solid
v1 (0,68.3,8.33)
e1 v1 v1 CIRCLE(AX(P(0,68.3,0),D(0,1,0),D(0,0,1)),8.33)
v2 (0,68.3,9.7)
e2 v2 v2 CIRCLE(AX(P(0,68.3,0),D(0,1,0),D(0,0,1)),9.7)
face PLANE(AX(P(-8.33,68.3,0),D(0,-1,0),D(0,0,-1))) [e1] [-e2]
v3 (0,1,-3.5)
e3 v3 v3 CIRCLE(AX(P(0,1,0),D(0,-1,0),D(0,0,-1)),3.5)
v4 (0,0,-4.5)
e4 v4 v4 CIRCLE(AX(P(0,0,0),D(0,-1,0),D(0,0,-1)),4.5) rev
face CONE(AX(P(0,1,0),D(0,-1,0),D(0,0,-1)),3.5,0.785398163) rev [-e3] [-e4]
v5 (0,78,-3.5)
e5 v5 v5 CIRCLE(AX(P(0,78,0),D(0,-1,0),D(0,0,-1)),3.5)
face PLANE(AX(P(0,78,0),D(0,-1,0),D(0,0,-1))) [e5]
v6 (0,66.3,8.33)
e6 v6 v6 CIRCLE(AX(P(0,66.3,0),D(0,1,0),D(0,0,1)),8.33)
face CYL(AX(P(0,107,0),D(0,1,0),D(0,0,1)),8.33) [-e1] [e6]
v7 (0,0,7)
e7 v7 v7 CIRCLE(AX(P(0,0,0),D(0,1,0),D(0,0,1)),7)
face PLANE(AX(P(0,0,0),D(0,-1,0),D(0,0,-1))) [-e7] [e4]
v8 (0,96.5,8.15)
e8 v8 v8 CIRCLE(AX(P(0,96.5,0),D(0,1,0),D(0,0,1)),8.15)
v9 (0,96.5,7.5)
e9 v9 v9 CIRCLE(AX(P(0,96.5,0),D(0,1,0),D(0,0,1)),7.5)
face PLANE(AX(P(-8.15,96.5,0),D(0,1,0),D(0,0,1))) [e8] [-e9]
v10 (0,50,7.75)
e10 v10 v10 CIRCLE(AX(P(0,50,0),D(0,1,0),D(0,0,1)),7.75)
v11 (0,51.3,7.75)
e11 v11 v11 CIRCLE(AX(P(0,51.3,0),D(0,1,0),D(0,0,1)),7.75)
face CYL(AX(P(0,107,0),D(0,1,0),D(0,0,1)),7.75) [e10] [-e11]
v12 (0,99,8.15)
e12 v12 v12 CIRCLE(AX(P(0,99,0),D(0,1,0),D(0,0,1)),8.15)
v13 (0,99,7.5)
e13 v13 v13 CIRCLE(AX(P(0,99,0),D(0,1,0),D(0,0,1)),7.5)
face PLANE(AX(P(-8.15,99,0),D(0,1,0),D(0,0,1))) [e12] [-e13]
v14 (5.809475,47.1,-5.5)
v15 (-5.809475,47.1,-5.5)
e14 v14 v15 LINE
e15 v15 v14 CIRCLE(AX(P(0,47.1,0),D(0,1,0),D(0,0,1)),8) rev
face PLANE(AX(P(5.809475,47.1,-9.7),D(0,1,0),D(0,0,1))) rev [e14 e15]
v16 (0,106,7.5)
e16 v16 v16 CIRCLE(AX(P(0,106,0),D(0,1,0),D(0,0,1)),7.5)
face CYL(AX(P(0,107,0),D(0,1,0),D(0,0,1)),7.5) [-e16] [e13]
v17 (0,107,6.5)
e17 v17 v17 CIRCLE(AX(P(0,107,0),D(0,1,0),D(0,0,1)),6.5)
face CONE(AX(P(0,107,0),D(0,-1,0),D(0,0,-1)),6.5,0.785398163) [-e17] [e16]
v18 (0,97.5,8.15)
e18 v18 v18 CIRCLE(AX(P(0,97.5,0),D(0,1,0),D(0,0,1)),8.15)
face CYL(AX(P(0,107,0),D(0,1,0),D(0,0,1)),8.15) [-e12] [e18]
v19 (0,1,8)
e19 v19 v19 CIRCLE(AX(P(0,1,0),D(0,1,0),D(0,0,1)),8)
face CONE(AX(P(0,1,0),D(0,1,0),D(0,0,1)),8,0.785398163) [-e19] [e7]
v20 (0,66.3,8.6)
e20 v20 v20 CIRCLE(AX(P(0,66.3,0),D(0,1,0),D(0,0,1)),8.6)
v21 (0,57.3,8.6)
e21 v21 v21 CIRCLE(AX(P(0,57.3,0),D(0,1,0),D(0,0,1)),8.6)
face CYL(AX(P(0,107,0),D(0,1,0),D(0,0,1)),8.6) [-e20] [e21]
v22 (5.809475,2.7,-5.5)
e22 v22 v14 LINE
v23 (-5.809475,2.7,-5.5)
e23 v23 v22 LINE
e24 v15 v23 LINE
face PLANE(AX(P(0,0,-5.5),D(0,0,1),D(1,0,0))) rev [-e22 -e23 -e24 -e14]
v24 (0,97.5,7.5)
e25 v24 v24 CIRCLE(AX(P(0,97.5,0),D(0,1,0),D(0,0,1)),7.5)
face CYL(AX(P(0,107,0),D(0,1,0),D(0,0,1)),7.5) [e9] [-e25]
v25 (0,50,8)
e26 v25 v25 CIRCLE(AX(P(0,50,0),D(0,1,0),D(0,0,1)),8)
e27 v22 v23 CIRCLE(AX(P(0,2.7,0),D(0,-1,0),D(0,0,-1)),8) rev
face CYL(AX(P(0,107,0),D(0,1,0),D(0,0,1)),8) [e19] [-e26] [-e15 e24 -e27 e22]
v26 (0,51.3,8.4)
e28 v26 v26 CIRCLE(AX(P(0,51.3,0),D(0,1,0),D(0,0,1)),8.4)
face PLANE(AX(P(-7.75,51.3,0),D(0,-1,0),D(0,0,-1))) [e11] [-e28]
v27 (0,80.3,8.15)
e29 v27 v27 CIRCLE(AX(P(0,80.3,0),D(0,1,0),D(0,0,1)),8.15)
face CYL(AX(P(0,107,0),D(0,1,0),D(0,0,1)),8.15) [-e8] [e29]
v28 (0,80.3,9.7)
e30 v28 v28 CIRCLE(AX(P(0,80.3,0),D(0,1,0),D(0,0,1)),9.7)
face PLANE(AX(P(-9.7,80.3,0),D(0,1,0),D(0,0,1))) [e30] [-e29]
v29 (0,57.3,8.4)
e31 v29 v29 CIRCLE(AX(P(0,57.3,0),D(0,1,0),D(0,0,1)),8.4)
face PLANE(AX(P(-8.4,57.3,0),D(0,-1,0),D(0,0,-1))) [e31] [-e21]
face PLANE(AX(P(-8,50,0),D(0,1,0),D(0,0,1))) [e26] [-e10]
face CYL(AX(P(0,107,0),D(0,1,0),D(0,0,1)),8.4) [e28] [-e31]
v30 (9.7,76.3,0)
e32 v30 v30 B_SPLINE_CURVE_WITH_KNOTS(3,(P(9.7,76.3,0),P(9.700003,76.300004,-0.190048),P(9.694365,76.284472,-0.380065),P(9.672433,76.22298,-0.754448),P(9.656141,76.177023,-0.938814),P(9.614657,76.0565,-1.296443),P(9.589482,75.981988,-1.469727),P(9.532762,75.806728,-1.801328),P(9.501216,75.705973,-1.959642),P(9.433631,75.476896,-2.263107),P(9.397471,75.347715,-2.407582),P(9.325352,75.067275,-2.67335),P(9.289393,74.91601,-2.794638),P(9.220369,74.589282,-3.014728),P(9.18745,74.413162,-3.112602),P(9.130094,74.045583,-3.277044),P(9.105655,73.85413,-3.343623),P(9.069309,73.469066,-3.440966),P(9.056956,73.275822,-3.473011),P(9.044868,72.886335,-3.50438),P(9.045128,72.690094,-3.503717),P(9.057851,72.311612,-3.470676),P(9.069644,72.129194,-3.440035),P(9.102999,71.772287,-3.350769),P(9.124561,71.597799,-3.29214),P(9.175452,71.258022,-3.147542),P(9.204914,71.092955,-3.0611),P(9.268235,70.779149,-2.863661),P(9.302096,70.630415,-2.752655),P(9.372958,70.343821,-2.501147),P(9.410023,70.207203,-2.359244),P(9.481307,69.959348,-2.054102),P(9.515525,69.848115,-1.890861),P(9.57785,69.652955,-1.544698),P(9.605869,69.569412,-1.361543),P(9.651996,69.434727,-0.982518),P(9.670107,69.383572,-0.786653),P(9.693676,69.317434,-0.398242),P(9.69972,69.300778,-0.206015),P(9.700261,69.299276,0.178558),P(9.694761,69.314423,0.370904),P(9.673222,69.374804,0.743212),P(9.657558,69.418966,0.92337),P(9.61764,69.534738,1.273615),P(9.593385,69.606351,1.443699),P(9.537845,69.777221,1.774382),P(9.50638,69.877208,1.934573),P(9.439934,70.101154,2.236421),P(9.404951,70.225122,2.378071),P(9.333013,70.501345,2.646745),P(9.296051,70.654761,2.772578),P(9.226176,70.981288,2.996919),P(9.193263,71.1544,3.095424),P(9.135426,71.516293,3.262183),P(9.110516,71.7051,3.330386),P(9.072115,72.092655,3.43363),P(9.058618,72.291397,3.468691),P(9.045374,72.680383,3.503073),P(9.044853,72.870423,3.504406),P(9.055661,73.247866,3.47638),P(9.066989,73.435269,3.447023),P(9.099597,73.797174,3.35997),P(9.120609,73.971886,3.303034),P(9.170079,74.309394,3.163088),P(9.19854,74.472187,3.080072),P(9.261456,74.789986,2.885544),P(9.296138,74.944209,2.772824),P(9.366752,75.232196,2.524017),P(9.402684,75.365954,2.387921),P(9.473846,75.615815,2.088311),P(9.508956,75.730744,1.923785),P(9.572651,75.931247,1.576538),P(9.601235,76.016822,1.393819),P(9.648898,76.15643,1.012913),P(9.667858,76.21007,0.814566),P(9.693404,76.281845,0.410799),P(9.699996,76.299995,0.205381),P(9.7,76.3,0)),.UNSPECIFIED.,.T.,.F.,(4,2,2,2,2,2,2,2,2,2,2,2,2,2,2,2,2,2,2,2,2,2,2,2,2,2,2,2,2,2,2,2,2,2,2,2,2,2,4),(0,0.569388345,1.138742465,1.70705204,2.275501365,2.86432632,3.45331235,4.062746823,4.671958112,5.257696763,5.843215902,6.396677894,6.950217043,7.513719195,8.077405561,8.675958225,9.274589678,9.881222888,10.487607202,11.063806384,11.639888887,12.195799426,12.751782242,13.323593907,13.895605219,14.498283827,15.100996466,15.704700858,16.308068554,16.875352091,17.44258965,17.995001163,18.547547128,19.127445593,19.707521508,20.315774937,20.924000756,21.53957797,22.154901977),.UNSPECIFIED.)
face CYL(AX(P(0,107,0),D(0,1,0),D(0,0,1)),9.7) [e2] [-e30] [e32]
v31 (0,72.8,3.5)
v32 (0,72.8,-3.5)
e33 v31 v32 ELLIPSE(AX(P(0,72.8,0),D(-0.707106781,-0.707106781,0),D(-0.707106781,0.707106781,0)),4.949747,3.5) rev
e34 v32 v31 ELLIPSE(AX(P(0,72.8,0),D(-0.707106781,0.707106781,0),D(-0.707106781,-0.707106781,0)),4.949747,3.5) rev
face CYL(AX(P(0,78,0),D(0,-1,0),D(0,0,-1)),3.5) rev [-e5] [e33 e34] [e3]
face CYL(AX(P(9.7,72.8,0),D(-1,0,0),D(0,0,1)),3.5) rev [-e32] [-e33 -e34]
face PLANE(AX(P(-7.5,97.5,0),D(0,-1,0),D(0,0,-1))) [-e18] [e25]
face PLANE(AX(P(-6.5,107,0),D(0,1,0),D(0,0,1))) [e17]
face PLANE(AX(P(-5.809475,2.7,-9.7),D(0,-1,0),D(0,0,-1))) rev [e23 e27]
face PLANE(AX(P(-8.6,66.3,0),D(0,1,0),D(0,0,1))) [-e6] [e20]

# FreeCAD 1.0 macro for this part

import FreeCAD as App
import Part
import Sketcher

V = App.Vector
Q = App.Units.Quantity


def edges_at(feature, points):
    """Names of the edges that pass closest to the given points."""
    edges = feature.Shape.Edges
    near = lambda p: min(range(len(edges)), key=lambda i: edges[i].distToShape(Part.Vertex(*p))[0])
    return sorted({f"Edge{near(p) + 1}" for p in points})

doc = App.newDocument("Part")
params = doc.addObject("Spreadsheet::Sheet", "Params")
for row, (alias, value) in enumerate([
    ("sketch1_width", "7 mm"),
    ("sketch1_height", "107 mm"),
    ("sketch1_height2", "1 mm"),
    ("sketch1_height3", "12 mm"),
    ("sketch1_height4", "2 mm"),
    ("revolution_angle", "360 deg"),
    ("sketch2_height", "44.4 mm"),
    ("sketch3_diameter", "7 mm"),
    ("sketch4_diameter", "7 mm"),
    ("pocket3_length", "78 mm"),
    ("chamfer_size", "1 mm"),
], start=1):
    params.set(f"A{row}", alias)
    params.set(f"B{row}", "=" + value)
    params.setAlias(f"B{row}", alias)

body = doc.addObject("PartDesign::Body", "Body")

sketch1 = doc.addObject("Sketcher::SketchObject", "Sketch")
body.addObject(sketch1)
sketch1.AttachmentSupport = (doc.XY_Plane, [""])
sketch1.MapMode = "FlatFace"
sketch1.addGeometry(Part.LineSegment(V(-7, 0, 0), V(0, 0, 0)), False)
sketch1.addGeometry(Part.LineSegment(V(0, 0, 0), V(0, 107, 0)), False)
sketch1.addGeometry(Part.LineSegment(V(0, 107, 0), V(-6.5, 107, 0)), False)
sketch1.addGeometry(Part.LineSegment(V(-6.5, 107, 0), V(-7.5, 106, 0)), False)
sketch1.addGeometry(Part.LineSegment(V(-7.5, 106, 0), V(-7.5, 99, 0)), False)
sketch1.addGeometry(Part.LineSegment(V(-7.5, 99, 0), V(-8.15, 99, 0)), False)
sketch1.addGeometry(Part.LineSegment(V(-8.15, 99, 0), V(-8.15, 97.5, 0)), False)
sketch1.addGeometry(Part.LineSegment(V(-8.15, 97.5, 0), V(-7.5, 97.5, 0)), False)
sketch1.addGeometry(Part.LineSegment(V(-7.5, 97.5, 0), V(-7.5, 96.5, 0)), False)
sketch1.addGeometry(Part.LineSegment(V(-7.5, 96.5, 0), V(-8.15, 96.5, 0)), False)
sketch1.addGeometry(Part.LineSegment(V(-8.15, 96.5, 0), V(-8.15, 80.3, 0)), False)
sketch1.addGeometry(Part.LineSegment(V(-8.15, 80.3, 0), V(-9.7, 80.3, 0)), False)
sketch1.addGeometry(Part.LineSegment(V(-9.7, 80.3, 0), V(-9.7, 68.3, 0)), False)
sketch1.addGeometry(Part.LineSegment(V(-9.7, 68.3, 0), V(-8.33, 68.3, 0)), False)
sketch1.addGeometry(Part.LineSegment(V(-8.33, 68.3, 0), V(-8.33, 66.3, 0)), False)
sketch1.addGeometry(Part.LineSegment(V(-8.33, 66.3, 0), V(-8.6, 66.3, 0)), False)
sketch1.addGeometry(Part.LineSegment(V(-8.6, 66.3, 0), V(-8.6, 57.3, 0)), False)
sketch1.addGeometry(Part.LineSegment(V(-8.6, 57.3, 0), V(-8.4, 57.3, 0)), False)
sketch1.addGeometry(Part.LineSegment(V(-8.4, 57.3, 0), V(-8.4, 51.3, 0)), False)
sketch1.addGeometry(Part.LineSegment(V(-8.4, 51.3, 0), V(-7.75, 51.3, 0)), False)
sketch1.addGeometry(Part.LineSegment(V(-7.75, 51.3, 0), V(-7.75, 50, 0)), False)
sketch1.addGeometry(Part.LineSegment(V(-7.75, 50, 0), V(-8, 50, 0)), False)
sketch1.addGeometry(Part.LineSegment(V(-8, 50, 0), V(-8, 1, 0)), False)
sketch1.addGeometry(Part.LineSegment(V(-8, 1, 0), V(-7, 0, 0)), False)
sketch1.addConstraint(Sketcher.Constraint("Coincident", 0, 2, 1, 1))
sketch1.addConstraint(Sketcher.Constraint("Coincident", 1, 2, 2, 1))
sketch1.addConstraint(Sketcher.Constraint("Coincident", 2, 2, 3, 1))
sketch1.addConstraint(Sketcher.Constraint("Coincident", 3, 2, 4, 1))
sketch1.addConstraint(Sketcher.Constraint("Coincident", 4, 2, 5, 1))
sketch1.addConstraint(Sketcher.Constraint("Coincident", 5, 2, 6, 1))
sketch1.addConstraint(Sketcher.Constraint("Coincident", 6, 2, 7, 1))
sketch1.addConstraint(Sketcher.Constraint("Coincident", 7, 2, 8, 1))
sketch1.addConstraint(Sketcher.Constraint("Coincident", 8, 2, 9, 1))
sketch1.addConstraint(Sketcher.Constraint("Coincident", 9, 2, 10, 1))
sketch1.addConstraint(Sketcher.Constraint("Coincident", 10, 2, 11, 1))
sketch1.addConstraint(Sketcher.Constraint("Coincident", 11, 2, 12, 1))
sketch1.addConstraint(Sketcher.Constraint("Coincident", 12, 2, 13, 1))
sketch1.addConstraint(Sketcher.Constraint("Coincident", 13, 2, 14, 1))
sketch1.addConstraint(Sketcher.Constraint("Coincident", 14, 2, 15, 1))
sketch1.addConstraint(Sketcher.Constraint("Coincident", 15, 2, 16, 1))
sketch1.addConstraint(Sketcher.Constraint("Coincident", 16, 2, 17, 1))
sketch1.addConstraint(Sketcher.Constraint("Coincident", 17, 2, 18, 1))
sketch1.addConstraint(Sketcher.Constraint("Coincident", 18, 2, 19, 1))
sketch1.addConstraint(Sketcher.Constraint("Coincident", 19, 2, 20, 1))
sketch1.addConstraint(Sketcher.Constraint("Coincident", 20, 2, 21, 1))
sketch1.addConstraint(Sketcher.Constraint("Coincident", 21, 2, 22, 1))
sketch1.addConstraint(Sketcher.Constraint("Coincident", 22, 2, 23, 1))
sketch1.addConstraint(Sketcher.Constraint("Coincident", 23, 2, 0, 1))
sketch1.addConstraint(Sketcher.Constraint("Horizontal", 0))
sketch1.addConstraint(Sketcher.Constraint("Vertical", 1))
sketch1.addConstraint(Sketcher.Constraint("Horizontal", 2))
sketch1.addConstraint(Sketcher.Constraint("Vertical", 4))
sketch1.addConstraint(Sketcher.Constraint("Horizontal", 5))
sketch1.addConstraint(Sketcher.Constraint("Vertical", 6))
sketch1.addConstraint(Sketcher.Constraint("Horizontal", 7))
sketch1.addConstraint(Sketcher.Constraint("Vertical", 8))
sketch1.addConstraint(Sketcher.Constraint("Horizontal", 9))
sketch1.addConstraint(Sketcher.Constraint("Vertical", 10))
sketch1.addConstraint(Sketcher.Constraint("Horizontal", 11))
sketch1.addConstraint(Sketcher.Constraint("Vertical", 12))
sketch1.addConstraint(Sketcher.Constraint("Horizontal", 13))
sketch1.addConstraint(Sketcher.Constraint("Vertical", 14))
sketch1.addConstraint(Sketcher.Constraint("Horizontal", 15))
sketch1.addConstraint(Sketcher.Constraint("Vertical", 16))
sketch1.addConstraint(Sketcher.Constraint("Horizontal", 17))
sketch1.addConstraint(Sketcher.Constraint("Vertical", 18))
sketch1.addConstraint(Sketcher.Constraint("Horizontal", 19))
sketch1.addConstraint(Sketcher.Constraint("Vertical", 20))
sketch1.addConstraint(Sketcher.Constraint("Horizontal", 21))
sketch1.addConstraint(Sketcher.Constraint("Vertical", 22))
sketch1.addConstraint(Sketcher.Constraint("Coincident", 0, 2, -1, 1))
sketch1.addConstraint(Sketcher.Constraint("Perpendicular", 3, 23))
sketch1.addConstraint(Sketcher.Constraint("Vertical", 4, 2, 7, 2))
sketch1.addConstraint(Sketcher.Constraint("Vertical", 6, 2, 9, 2))
sketch1.addConstraint(Sketcher.Constraint("Equal", 9, 19))
sketch1.addConstraint(Sketcher.Constraint("Equal", 0, 4))
sketch1.addConstraint(Sketcher.Constraint("Equal", 3, 23))
sketch1.addConstraint(Sketcher.Constraint("DistanceX", 0, 1, 0, 2, Q("7 mm")))
sketch1.addConstraint(Sketcher.Constraint("DistanceY", 1, 1, 1, 2, Q("107 mm")))
sketch1.addConstraint(Sketcher.Constraint("DistanceY", 8, 2, 8, 1, Q("1 mm")))
sketch1.addConstraint(Sketcher.Constraint("DistanceY", 12, 2, 12, 1, Q("12 mm")))
sketch1.addConstraint(Sketcher.Constraint("DistanceY", 14, 2, 14, 1, Q("2 mm")))
sketch1.addConstraint(Sketcher.Constraint("DistanceY", 16, 2, 16, 1, Q("9 mm")))
sketch1.addConstraint(Sketcher.Constraint("DistanceY", 18, 2, 18, 1, Q("6 mm")))
sketch1.addConstraint(Sketcher.Constraint("DistanceY", 22, 2, 22, 1, Q("49 mm")))
sketch1.addConstraint(Sketcher.Constraint("Angle", 3, Q("-135 deg")))
sketch1.addConstraint(Sketcher.Constraint("DistanceX", 2, 2, 2, 1, Q("6.5 mm")))
sketch1.addConstraint(Sketcher.Constraint("DistanceX", 17, 1, 17, 2, Q("0.2 mm")))
sketch1.addConstraint(Sketcher.Constraint("DistanceY", 6, 2, 6, 1, Q("1.5 mm")))
sketch1.addConstraint(Sketcher.Constraint("DistanceY", 10, 2, 10, 1, Q("16.2 mm")))
sketch1.addConstraint(Sketcher.Constraint("DistanceY", 20, 2, 20, 1, Q("1.3 mm")))
sketch1.addConstraint(Sketcher.Constraint("DistanceX", 5, 2, 5, 1, Q("0.65 mm")))
sketch1.addConstraint(Sketcher.Constraint("DistanceX", 11, 2, 11, 1, Q("1.55 mm")))
sketch1.addConstraint(Sketcher.Constraint("DistanceX", 13, 1, 13, 2, Q("1.37 mm")))
sketch1.addConstraint(Sketcher.Constraint("DistanceX", 15, 2, 15, 1, Q("0.27 mm")))
sketch1.setExpression("Constraints[53]", "Params.sketch1_width")
sketch1.setExpression("Constraints[54]", "Params.sketch1_height")
sketch1.setExpression("Constraints[55]", "Params.sketch1_height2")
sketch1.setExpression("Constraints[56]", "Params.sketch1_height3")
sketch1.setExpression("Constraints[57]", "Params.sketch1_height4")
revolution = doc.addObject("PartDesign::Revolution", "Revolution")
body.addObject(revolution)
revolution.Profile = sketch1
revolution.ReferenceAxis = (sketch1, ["V_Axis"])
revolution.setExpression("Angle", "Params.revolution_angle")

sketch2 = doc.addObject("Sketcher::SketchObject", "Sketch001")
body.addObject(sketch2)
sketch2.AttachmentSupport = (doc.XY_Plane, [""])
sketch2.MapMode = "FlatFace"
sketch2.AttachmentOffset = App.Placement(V(0, 0, -5.5), App.Rotation())
sketch2.addGeometry(Part.LineSegment(V(-6, 47, 0), V(-6, 3, 0)), False)
sketch2.addGeometry(Part.LineSegment(V(-6, 3, 0), V(6, 3, 0)), False)
sketch2.addGeometry(Part.LineSegment(V(6, 3, 0), V(6, 47, 0)), False)
sketch2.addGeometry(Part.LineSegment(V(6, 47, 0), V(-6, 47, 0)), False)
sketch2.addConstraint(Sketcher.Constraint("Coincident", 0, 2, 1, 1))
sketch2.addConstraint(Sketcher.Constraint("Coincident", 1, 2, 2, 1))
sketch2.addConstraint(Sketcher.Constraint("Coincident", 2, 2, 3, 1))
sketch2.addConstraint(Sketcher.Constraint("Coincident", 3, 2, 0, 1))
sketch2.addConstraint(Sketcher.Constraint("Vertical", 0))
sketch2.addConstraint(Sketcher.Constraint("Horizontal", 1))
sketch2.addConstraint(Sketcher.Constraint("Vertical", 2))
sketch2.addConstraint(Sketcher.Constraint("Horizontal", 3))
sketch2.addConstraint(Sketcher.Constraint("DistanceY", 0, 2, 0, 1, Q("44.4 mm")))
sketch2.addConstraint(Sketcher.Constraint("DistanceY", -1, 1, 0, 2, Q("2.7 mm")))
sketch2.addConstraint(Sketcher.Constraint("DistanceX", 1, 1, 1, 2, Q("11.61895 mm")))
sketch2.addConstraint(Sketcher.Constraint("DistanceX", 0, 2, -1, 1, Q("5.809475 mm")))
sketch2.setExpression("Constraints[8]", "Params.sketch2_height")
pocket1 = doc.addObject("PartDesign::Pocket", "Pocket")
body.addObject(pocket1)
pocket1.Profile = sketch2
pocket1.Type = "ThroughAll"

sketch3 = doc.addObject("Sketcher::SketchObject", "Sketch002")
body.addObject(sketch3)
sketch3.AttachmentSupport = (doc.YZ_Plane, [""])
sketch3.MapMode = "FlatFace"
sketch3.addGeometry(Part.Circle(V(72.8, 0, 0), V(0, 0, 1), 3.5), False)
sketch3.addConstraint(Sketcher.Constraint("PointOnObject", 0, 3, -1))
sketch3.addConstraint(Sketcher.Constraint("Diameter", 0, Q("7 mm")))
sketch3.addConstraint(Sketcher.Constraint("DistanceX", -1, 1, 0, 3, Q("72.8 mm")))
sketch3.setExpression("Constraints[1]", "Params.sketch3_diameter")
pocket2 = doc.addObject("PartDesign::Pocket", "Pocket001")
body.addObject(pocket2)
pocket2.Profile = sketch3
pocket2.Type = "ThroughAll"
pocket2.Reversed = True

sketch4 = doc.addObject("Sketcher::SketchObject", "Sketch003")
body.addObject(sketch4)
sketch4.AttachmentSupport = (doc.XZ_Plane, [""])
sketch4.MapMode = "FlatFace"
sketch4.addGeometry(Part.Circle(V(0, 0, 0), V(0, 0, 1), 3.5), False)
sketch4.addConstraint(Sketcher.Constraint("Coincident", 0, 3, -1, 1))
sketch4.addConstraint(Sketcher.Constraint("Diameter", 0, Q("7 mm")))
sketch4.setExpression("Constraints[1]", "Params.sketch4_diameter")
pocket3 = doc.addObject("PartDesign::Pocket", "Pocket002")
body.addObject(pocket3)
pocket3.Profile = sketch4
pocket3.setExpression("Length", "Params.pocket3_length")
doc.recompute()

chamfer = doc.addObject("PartDesign::Chamfer", "Chamfer")
body.addObject(chamfer)
chamfer.Base = (pocket3, edges_at(pocket3, [(0, 0, 3.5)]))
chamfer.setExpression("Size", "Params.chamfer_size")

doc.recompute()
